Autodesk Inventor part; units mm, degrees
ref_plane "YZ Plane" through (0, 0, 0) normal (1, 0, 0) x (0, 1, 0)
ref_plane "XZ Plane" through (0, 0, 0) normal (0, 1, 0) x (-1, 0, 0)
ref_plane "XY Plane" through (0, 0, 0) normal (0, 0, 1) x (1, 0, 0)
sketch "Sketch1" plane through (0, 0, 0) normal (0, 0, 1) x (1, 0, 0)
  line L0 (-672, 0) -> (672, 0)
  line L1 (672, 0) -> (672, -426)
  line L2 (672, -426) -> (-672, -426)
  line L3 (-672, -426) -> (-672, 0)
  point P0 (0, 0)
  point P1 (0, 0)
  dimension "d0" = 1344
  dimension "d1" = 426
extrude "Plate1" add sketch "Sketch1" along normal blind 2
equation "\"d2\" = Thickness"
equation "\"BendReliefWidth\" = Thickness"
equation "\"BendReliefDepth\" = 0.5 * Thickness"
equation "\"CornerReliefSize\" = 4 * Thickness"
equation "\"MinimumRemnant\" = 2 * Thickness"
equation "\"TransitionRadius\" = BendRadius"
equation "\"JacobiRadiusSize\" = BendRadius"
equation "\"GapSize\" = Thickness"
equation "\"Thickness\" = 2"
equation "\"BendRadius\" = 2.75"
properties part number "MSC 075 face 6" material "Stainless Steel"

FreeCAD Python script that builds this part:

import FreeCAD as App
import Part
import Sketcher
from FreeCAD import Vector
Q = App.Units.Quantity


def add_polygon(sketch, points):
    """Adds a closed chain of lines whose ends are joined by coincident constraints."""
    first, n = sketch.GeometryCount, len(points)
    for a, b in zip(points, points[1:] + points[:1]):
        sketch.addGeometry(Part.LineSegment(App.Vector(*a, 0), App.Vector(*b, 0)), False)
    for i in range(n):
        sketch.addConstraint(Sketcher.Constraint("Coincident", first + i, 2, first + (i + 1) % n, 1))

doc = App.newDocument("Part")
body = doc.addObject("PartDesign::Body", "Body")

# Sketch on XY plane
sketch1 = body.newObject("Sketcher::SketchObject", "Sketch")
sketch1.AttachmentSupport = (doc.getObject("XY_Plane"), [""])
sketch1.MapMode = "FlatFace"
add_polygon(sketch1, [(672, 0), (-672, 0), (-672, -426), (672, -426)])  # lines 0-3
sketch1.addConstraint(Sketcher.Constraint("Horizontal", 0))
sketch1.addConstraint(Sketcher.Constraint("Vertical", 1))
sketch1.addConstraint(Sketcher.Constraint("Horizontal", 2))
sketch1.addConstraint(Sketcher.Constraint("Vertical", 3))
sketch1.addConstraint(Sketcher.Constraint("Symmetric", 0, 2, 3, 2, -1, 1))
sketch1.addConstraint(Sketcher.Constraint("DistanceX", 0, 2, 0, 1, Q("1344 mm")))
sketch1.addConstraint(Sketcher.Constraint("DistanceY", 1, 2, 1, 1, Q("426 mm")))
pad1 = body.newObject("PartDesign::Pad", "Pad")
pad1.Profile = sketch1
pad1.Length = 2

doc.recompute()
